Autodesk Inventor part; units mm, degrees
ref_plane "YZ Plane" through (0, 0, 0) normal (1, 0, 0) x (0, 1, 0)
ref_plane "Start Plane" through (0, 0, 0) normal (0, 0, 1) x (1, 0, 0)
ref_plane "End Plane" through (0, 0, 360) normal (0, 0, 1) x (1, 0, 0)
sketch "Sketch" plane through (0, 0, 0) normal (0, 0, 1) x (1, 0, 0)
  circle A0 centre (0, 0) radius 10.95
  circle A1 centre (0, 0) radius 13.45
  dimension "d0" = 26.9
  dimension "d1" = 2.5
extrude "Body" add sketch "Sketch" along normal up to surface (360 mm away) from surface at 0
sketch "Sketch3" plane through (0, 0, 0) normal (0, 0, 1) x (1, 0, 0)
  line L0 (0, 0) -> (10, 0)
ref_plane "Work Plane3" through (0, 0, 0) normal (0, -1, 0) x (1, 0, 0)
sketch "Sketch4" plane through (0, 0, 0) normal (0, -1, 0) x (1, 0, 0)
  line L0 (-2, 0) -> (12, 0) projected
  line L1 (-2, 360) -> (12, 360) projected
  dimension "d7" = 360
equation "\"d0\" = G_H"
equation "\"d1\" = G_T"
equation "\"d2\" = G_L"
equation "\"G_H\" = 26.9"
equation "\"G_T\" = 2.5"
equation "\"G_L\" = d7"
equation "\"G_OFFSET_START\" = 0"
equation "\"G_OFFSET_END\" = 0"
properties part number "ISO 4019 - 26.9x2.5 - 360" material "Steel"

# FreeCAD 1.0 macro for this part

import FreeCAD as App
import Part
import Sketcher

V = App.Vector

doc = App.newDocument("Part")
params = doc.addObject("Spreadsheet::Sheet", "Params")
for row, (alias, value) in enumerate([
    ("sketch1_diameter", "26.9 mm"),
    ("sketch1_diameter2", "21.9 mm"),
    ("pad1_length", "360 mm"),
], start=1):
    params.set(f"A{row}", alias)
    params.set(f"B{row}", "=" + value)
    params.setAlias(f"B{row}", alias)

body = doc.addObject("PartDesign::Body", "Body")

sketch1 = body.newObject("Sketcher::SketchObject", "Sketch")
sketch1.AttachmentSupport = (doc.getObject("XY_Plane"), [""])
sketch1.MapMode = "FlatFace"
sketch1.addGeometry([
    Part.Circle(V(0, 0, 0), V(0, 0, 1), 13),
    Part.Circle(V(0, 0, 0), V(0, 0, 1), 11),
], False)
sketch1.addConstraint([
    Sketcher.Constraint("Coincident", 0, 3, -1, 1),
    Sketcher.Constraint("Coincident", 1, 3, -1, 1),
    Sketcher.Constraint("Diameter", 0, 26.9),
    Sketcher.Constraint("Diameter", 1, 21.9),
])
sketch1.setExpression("Constraints[2]", "Params.sketch1_diameter")
sketch1.setExpression("Constraints[3]", "Params.sketch1_diameter2")
pad1 = body.newObject("PartDesign::Pad", "Pad")
pad1.Profile = sketch1
pad1.setExpression("Length", "Params.pad1_length")

doc.recompute()
